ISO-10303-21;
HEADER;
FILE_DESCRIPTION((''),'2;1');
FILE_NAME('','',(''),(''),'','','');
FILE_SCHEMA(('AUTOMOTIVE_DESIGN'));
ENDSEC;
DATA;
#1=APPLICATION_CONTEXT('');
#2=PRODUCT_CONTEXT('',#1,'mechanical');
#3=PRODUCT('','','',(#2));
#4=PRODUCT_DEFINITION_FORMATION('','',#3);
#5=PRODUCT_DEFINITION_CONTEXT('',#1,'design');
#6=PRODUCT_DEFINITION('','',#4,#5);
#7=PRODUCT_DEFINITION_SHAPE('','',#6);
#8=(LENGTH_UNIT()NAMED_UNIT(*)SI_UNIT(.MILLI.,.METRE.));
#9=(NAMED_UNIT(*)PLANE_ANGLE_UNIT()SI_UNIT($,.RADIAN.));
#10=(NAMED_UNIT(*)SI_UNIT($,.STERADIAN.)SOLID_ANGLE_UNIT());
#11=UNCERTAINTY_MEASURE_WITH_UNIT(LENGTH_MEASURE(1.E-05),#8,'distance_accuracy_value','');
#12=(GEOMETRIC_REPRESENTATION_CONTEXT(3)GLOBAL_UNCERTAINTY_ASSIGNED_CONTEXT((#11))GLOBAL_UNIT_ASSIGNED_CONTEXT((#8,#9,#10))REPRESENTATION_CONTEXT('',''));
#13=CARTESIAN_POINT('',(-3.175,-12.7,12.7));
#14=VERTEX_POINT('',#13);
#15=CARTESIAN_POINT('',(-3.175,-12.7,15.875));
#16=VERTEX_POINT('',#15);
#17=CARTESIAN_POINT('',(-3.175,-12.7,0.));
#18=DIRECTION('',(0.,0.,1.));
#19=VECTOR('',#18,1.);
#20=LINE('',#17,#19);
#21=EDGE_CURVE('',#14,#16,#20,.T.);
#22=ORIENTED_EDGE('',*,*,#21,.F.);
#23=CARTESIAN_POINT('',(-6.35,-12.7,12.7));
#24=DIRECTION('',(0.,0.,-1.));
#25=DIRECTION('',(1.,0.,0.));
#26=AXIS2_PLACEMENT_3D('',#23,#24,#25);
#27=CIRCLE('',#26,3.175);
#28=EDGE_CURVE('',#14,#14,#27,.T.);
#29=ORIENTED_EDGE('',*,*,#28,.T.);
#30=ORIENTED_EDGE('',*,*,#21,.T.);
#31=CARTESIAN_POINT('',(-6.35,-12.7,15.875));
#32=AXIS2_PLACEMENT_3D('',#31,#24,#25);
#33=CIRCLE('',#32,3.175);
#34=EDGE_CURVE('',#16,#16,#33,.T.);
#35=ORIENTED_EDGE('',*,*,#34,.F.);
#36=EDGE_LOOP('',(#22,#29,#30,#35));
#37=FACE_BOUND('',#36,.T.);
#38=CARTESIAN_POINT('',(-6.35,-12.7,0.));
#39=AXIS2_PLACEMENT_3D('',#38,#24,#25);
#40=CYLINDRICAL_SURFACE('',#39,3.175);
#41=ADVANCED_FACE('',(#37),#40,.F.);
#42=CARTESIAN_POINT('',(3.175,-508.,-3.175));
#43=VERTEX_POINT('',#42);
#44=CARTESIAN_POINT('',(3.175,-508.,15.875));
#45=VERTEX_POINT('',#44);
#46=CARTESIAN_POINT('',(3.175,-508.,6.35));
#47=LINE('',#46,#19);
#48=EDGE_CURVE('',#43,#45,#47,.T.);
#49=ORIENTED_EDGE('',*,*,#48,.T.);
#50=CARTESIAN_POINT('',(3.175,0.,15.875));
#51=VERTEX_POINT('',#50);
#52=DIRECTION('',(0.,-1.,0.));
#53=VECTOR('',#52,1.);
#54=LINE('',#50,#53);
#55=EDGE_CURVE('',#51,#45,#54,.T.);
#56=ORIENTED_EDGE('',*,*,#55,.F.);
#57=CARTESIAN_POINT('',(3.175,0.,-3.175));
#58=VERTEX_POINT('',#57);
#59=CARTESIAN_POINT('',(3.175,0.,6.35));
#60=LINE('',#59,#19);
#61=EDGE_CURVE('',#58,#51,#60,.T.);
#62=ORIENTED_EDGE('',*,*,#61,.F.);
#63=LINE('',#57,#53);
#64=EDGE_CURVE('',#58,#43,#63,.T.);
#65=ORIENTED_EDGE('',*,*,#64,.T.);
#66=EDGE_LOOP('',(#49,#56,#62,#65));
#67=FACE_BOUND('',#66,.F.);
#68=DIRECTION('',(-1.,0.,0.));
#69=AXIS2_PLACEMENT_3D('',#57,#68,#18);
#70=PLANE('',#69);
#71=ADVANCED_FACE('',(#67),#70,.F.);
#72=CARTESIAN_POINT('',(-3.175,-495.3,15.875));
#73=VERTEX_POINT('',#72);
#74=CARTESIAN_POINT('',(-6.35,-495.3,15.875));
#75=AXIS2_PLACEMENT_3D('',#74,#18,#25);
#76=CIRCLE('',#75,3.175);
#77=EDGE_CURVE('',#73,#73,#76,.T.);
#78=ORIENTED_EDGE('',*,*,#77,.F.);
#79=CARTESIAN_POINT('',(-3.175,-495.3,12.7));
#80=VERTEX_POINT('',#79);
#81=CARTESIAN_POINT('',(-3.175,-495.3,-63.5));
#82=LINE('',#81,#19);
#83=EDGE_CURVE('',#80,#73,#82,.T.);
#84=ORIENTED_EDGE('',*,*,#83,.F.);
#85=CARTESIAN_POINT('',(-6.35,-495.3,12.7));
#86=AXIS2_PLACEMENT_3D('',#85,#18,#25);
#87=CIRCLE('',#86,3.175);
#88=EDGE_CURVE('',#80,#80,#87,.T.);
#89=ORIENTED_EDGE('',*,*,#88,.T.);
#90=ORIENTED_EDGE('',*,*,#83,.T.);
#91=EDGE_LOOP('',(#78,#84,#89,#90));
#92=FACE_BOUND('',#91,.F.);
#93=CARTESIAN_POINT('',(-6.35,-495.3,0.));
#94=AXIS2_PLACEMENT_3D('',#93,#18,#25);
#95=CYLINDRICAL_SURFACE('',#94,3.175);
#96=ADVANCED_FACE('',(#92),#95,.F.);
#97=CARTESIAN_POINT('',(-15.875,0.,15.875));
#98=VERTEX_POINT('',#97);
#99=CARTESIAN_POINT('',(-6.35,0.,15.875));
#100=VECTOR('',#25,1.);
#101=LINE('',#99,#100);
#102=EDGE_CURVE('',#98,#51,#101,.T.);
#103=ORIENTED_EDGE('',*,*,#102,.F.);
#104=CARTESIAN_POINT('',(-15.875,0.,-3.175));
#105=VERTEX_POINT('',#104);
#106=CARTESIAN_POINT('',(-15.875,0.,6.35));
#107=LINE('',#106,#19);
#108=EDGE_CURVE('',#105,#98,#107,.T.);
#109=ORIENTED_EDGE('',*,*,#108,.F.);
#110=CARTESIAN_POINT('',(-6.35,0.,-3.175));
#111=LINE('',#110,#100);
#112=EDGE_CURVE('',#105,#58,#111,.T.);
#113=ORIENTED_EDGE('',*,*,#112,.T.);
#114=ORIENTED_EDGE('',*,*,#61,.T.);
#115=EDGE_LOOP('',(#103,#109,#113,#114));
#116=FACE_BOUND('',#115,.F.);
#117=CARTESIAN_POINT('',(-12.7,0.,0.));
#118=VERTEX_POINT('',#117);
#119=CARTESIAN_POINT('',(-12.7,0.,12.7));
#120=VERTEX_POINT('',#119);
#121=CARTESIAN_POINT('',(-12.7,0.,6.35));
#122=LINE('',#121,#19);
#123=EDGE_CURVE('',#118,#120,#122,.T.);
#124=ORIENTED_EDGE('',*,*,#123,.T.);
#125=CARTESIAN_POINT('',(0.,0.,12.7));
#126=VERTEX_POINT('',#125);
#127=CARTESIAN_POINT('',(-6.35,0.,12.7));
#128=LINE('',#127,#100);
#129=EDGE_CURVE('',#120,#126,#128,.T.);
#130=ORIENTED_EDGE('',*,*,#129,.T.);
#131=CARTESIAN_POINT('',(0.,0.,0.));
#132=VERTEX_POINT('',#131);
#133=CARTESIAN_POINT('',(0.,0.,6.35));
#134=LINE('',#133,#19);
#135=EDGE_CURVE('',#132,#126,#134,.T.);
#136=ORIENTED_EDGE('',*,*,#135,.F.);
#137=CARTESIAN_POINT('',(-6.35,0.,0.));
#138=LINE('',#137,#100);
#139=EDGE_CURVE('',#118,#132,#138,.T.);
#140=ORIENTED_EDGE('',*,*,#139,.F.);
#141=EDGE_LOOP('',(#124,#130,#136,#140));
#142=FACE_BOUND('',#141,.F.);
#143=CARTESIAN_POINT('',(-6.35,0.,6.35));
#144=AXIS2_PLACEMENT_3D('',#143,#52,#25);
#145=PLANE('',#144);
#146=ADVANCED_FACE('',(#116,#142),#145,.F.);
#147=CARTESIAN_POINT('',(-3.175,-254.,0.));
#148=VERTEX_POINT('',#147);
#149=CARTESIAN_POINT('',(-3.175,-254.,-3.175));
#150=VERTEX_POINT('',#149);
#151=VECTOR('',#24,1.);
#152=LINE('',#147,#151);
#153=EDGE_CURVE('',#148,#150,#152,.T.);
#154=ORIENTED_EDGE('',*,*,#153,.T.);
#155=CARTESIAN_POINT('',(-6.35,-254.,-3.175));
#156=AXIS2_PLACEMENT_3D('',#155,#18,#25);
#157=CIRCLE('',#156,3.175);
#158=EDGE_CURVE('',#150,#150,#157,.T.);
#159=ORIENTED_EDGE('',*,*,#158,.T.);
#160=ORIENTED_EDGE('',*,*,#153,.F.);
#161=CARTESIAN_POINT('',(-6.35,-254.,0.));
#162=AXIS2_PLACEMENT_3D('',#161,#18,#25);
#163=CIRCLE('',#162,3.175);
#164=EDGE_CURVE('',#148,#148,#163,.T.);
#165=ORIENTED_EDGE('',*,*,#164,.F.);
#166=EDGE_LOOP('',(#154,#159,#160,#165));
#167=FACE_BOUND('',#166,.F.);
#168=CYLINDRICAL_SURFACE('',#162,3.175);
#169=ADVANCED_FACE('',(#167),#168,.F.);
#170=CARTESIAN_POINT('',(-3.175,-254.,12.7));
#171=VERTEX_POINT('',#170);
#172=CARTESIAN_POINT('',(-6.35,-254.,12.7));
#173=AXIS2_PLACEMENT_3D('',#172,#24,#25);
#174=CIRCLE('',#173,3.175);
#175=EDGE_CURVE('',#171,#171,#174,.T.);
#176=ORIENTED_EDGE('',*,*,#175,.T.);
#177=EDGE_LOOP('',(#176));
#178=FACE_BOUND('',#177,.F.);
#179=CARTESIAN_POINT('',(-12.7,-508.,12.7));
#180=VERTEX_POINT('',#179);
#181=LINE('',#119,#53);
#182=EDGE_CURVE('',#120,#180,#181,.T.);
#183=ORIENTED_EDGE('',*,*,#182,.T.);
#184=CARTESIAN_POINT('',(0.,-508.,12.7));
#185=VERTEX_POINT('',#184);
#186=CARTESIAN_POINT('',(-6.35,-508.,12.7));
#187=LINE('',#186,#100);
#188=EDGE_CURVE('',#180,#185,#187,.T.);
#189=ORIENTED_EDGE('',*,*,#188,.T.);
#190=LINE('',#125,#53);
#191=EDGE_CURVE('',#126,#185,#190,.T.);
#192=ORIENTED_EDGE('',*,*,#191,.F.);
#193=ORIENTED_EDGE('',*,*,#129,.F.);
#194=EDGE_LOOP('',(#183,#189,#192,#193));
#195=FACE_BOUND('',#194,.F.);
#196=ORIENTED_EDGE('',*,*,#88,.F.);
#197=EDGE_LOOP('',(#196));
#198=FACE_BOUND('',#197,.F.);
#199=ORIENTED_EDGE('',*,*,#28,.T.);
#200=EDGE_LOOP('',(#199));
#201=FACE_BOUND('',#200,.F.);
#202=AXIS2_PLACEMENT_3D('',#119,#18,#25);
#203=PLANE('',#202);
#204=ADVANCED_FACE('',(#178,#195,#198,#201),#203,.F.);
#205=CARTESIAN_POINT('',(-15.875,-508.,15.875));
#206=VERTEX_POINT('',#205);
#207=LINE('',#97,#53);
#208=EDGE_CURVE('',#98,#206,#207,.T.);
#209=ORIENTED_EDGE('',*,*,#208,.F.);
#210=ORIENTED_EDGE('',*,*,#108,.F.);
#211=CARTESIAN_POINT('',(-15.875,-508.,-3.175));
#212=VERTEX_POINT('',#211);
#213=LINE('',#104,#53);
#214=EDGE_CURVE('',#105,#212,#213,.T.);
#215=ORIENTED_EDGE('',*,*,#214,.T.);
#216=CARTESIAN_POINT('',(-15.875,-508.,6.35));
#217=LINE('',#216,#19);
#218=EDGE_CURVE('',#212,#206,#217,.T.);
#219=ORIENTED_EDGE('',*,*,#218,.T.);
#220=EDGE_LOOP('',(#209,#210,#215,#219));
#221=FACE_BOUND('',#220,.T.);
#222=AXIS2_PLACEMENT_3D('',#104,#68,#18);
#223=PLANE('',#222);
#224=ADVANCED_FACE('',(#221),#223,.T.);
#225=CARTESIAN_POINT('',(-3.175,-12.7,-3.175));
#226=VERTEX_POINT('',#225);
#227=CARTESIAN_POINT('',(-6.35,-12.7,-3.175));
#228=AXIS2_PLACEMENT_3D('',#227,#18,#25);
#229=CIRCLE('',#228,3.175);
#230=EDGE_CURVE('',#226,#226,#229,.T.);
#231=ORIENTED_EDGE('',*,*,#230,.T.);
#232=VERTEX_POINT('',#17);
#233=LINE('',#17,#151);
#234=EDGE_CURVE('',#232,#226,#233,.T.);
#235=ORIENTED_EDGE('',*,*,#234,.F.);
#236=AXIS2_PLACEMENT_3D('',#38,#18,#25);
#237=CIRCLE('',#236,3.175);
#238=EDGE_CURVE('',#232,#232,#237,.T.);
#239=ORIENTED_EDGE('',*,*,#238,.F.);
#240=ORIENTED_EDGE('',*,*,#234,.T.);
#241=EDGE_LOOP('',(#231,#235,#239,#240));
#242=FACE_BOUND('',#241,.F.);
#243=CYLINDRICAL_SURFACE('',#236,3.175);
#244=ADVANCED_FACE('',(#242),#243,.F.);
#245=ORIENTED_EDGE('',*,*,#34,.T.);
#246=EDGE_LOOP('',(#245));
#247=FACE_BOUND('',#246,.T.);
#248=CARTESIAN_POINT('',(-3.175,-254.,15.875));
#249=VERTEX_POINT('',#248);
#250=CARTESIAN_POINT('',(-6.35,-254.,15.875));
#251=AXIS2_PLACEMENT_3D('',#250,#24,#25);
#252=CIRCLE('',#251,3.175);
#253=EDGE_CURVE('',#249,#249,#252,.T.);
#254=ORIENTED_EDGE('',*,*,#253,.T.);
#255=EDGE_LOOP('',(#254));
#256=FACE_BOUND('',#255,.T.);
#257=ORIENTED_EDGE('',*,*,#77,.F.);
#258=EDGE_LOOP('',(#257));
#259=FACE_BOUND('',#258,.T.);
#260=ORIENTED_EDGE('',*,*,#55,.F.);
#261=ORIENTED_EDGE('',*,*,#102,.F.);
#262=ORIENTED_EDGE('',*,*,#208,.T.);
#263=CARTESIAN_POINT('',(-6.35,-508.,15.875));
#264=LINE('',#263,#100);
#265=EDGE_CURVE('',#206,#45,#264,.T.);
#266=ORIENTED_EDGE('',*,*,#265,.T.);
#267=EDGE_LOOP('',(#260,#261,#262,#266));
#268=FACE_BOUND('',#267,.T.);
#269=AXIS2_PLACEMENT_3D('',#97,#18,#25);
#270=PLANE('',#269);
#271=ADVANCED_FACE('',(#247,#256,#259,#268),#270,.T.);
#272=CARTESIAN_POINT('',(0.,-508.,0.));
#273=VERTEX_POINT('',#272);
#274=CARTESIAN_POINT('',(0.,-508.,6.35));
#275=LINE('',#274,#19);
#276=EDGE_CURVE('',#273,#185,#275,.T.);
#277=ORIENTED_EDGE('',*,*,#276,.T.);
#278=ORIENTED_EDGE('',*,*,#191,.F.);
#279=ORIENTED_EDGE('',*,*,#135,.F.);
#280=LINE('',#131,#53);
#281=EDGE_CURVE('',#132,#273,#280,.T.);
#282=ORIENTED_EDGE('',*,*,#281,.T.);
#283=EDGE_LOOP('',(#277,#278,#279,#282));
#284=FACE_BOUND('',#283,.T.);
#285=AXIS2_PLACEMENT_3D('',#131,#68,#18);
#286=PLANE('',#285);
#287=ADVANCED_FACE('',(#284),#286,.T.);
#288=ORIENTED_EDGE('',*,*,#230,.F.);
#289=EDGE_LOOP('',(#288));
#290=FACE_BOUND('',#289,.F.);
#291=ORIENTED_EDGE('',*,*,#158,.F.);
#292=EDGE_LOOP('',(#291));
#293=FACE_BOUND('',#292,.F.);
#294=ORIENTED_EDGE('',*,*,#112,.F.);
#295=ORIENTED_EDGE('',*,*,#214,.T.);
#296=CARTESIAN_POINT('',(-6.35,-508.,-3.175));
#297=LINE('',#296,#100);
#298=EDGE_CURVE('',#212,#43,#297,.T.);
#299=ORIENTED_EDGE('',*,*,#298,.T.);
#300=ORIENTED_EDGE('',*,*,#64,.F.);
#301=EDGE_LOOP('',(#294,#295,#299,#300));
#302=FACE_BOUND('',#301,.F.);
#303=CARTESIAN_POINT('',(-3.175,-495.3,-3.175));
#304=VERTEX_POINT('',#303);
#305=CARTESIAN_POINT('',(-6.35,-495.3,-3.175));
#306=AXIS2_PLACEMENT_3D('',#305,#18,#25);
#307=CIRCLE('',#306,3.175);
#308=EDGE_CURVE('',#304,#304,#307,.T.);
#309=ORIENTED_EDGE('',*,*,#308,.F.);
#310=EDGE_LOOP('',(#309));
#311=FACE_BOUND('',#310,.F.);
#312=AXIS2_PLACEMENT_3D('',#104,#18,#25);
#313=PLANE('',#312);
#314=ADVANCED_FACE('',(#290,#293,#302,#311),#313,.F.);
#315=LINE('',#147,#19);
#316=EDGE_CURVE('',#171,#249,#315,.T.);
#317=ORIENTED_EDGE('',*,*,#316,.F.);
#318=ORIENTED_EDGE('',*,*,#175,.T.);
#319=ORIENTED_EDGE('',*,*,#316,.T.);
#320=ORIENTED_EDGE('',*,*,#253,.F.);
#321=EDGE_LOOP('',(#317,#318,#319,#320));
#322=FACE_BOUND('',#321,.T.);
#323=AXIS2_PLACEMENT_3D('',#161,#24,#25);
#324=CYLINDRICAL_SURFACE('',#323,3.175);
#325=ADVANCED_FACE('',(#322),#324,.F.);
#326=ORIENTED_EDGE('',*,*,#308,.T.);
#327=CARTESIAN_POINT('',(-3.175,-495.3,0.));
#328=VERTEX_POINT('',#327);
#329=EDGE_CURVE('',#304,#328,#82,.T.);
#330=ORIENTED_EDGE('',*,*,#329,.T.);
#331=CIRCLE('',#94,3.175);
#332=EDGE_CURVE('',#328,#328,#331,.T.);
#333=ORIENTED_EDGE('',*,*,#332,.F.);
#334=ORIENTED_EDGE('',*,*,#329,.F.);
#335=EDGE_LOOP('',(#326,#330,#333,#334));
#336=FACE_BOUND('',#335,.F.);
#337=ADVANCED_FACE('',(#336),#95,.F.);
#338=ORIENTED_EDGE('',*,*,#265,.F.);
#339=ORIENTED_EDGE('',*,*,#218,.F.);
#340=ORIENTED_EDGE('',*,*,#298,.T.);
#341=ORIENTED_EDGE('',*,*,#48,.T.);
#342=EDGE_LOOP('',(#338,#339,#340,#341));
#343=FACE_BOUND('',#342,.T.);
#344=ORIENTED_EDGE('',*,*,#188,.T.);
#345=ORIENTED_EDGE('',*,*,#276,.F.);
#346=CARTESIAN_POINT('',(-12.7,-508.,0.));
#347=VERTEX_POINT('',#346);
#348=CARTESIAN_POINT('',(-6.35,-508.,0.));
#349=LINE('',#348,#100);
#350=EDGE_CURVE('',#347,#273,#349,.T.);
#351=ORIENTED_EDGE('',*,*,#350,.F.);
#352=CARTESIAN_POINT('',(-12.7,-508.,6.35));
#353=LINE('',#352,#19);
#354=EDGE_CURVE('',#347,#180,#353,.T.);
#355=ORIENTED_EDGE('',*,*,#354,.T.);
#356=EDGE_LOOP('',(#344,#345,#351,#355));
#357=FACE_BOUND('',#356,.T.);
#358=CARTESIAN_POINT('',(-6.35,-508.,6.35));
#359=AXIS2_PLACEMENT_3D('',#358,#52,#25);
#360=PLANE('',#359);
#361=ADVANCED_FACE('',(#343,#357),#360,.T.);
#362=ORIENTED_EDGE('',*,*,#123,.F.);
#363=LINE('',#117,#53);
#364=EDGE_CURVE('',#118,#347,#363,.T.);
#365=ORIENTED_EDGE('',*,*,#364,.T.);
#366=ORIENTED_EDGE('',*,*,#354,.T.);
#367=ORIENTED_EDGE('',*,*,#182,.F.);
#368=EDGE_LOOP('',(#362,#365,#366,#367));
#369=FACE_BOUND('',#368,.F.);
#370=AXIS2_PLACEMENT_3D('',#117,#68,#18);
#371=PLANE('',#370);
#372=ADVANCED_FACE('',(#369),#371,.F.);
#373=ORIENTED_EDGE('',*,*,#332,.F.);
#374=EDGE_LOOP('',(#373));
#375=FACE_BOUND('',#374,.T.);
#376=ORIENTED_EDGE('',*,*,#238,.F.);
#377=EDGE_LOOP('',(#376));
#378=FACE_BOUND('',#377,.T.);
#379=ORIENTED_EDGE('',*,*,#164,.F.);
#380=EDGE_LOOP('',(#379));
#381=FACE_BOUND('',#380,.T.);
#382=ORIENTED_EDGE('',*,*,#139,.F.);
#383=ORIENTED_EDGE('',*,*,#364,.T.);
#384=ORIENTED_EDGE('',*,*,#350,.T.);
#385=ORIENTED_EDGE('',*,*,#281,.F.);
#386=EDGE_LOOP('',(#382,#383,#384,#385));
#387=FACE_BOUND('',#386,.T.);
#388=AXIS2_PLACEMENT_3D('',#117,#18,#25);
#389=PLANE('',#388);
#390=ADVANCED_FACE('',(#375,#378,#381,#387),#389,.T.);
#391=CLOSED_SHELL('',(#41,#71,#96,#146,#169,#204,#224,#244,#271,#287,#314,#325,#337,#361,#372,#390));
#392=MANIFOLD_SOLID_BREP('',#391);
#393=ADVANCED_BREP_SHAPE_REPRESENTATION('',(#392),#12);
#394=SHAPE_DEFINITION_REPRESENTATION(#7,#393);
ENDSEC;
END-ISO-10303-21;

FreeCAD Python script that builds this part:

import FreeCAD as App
import Part
import Sketcher
from FreeCAD import Vector
Q = App.Units.Quantity


def add_polygon(sketch, points):
    """Adds a closed chain of lines whose ends are joined by coincident constraints."""
    first, n = sketch.GeometryCount, len(points)
    for a, b in zip(points, points[1:] + points[:1]):
        sketch.addGeometry(Part.LineSegment(App.Vector(*a, 0), App.Vector(*b, 0)), False)
    for i in range(n):
        sketch.addConstraint(Sketcher.Constraint("Coincident", first + i, 2, first + (i + 1) % n, 1))

doc = App.newDocument("Part")
params = doc.addObject("Spreadsheet::Sheet", "Params")
for row, (alias, value) in enumerate([
    ("sketch1_width", "0.5 in"),
    ("sketch1_width2", "0.75 in"),
    ("pad1_length", "20 in"),
    ("sketch2_diameter", "0.25 in"),
    ("pocket1_length", "5 in"),
], start=1):
    params.set(f"A{row}", alias)
    params.set(f"B{row}", "=" + value)
    params.setAlias(f"B{row}", alias)

body = doc.addObject("PartDesign::Body", "Body")

# Sketch on XZ plane
sketch1 = body.newObject("Sketcher::SketchObject", "Sketch")
sketch1.AttachmentSupport = (doc.getObject("XZ_Plane"), [""])
sketch1.MapMode = "FlatFace"
add_polygon(sketch1, [(-16, 16), (-16, -3), (3, -3), (3, 16)])  # lines 0-3
add_polygon(sketch1, [(0, 0), (-13, 0), (-13, 13), (0, 13)])  # lines 4-7
sketch1.addConstraint(Sketcher.Constraint("Vertical", 0))
sketch1.addConstraint(Sketcher.Constraint("Horizontal", 1))
sketch1.addConstraint(Sketcher.Constraint("Vertical", 2))
sketch1.addConstraint(Sketcher.Constraint("Horizontal", 3))
sketch1.addConstraint(Sketcher.Constraint("Horizontal", 4))
sketch1.addConstraint(Sketcher.Constraint("Vertical", 5))
sketch1.addConstraint(Sketcher.Constraint("Horizontal", 6))
sketch1.addConstraint(Sketcher.Constraint("Vertical", 7))
sketch1.addConstraint(Sketcher.Constraint("Coincident", 7, 2, -1, 1))
sketch1.addConstraint(Sketcher.Constraint("Equal", 3, 0))
sketch1.addConstraint(Sketcher.Constraint("Equal", 6, 5))
sketch1.addConstraint(Sketcher.Constraint("DistanceX", 4, 2, 4, 1, Q("0.5 in")))
sketch1.addConstraint(Sketcher.Constraint("DistanceX", 1, 1, 1, 2, Q("0.75 in")))
sketch1.addConstraint(Sketcher.Constraint("DistanceX", 0, 2, -1, 1, Q("0.625 in")))
sketch1.addConstraint(Sketcher.Constraint("DistanceY", 0, 2, -1, 1, Q("0.125 in")))
sketch1.setExpression("Constraints[19]", "Params.sketch1_width")
sketch1.setExpression("Constraints[20]", "Params.sketch1_width2")
pad1 = body.newObject("PartDesign::Pad", "Pad")
pad1.Profile = sketch1
pad1.setExpression("Length", "Params.pad1_length")

# Sketch on XY plane
sketch2 = body.newObject("Sketcher::SketchObject", "Sketch001")
sketch2.AttachmentSupport = (doc.getObject("XY_Plane"), [""])
sketch2.MapMode = "FlatFace"
sketch2.addGeometry(Part.Circle(Vector(-6.3, -12.7, 0), Vector(0, 0, 1), 3.2), False)
sketch2.addGeometry(Part.Circle(Vector(-6.3, -254, 0), Vector(0, 0, 1), 3.2), False)
sketch2.addGeometry(Part.Circle(Vector(-6.3, -495.3, 0), Vector(0, 0, 1), 3.2), False)
sketch2.addConstraint(Sketcher.Constraint("Equal", 0, 1))
sketch2.addConstraint(Sketcher.Constraint("Equal", 1, 2))
sketch2.addConstraint(Sketcher.Constraint("Vertical", 0, 3, 1, 3))
sketch2.addConstraint(Sketcher.Constraint("Vertical", 1, 3, 2, 3))
sketch2.addConstraint(Sketcher.Constraint("Diameter", 0, Q("0.25 in")))
sketch2.addConstraint(Sketcher.Constraint("DistanceY", 1, 3, -1, 1, Q("10 in")))
sketch2.addConstraint(Sketcher.Constraint("DistanceY", 2, 3, 0, 3, Q("19 in")))
sketch2.addConstraint(Sketcher.Constraint("DistanceY", 0, 3, -1, 1, Q("0.5 in")))
sketch2.addConstraint(Sketcher.Constraint("DistanceX", 0, 3, -1, 1, Q("0.25 in")))
sketch2.setExpression("Constraints[4]", "Params.sketch2_diameter")
pocket1 = body.newObject("PartDesign::Pocket", "Pocket")
pocket1.Profile = sketch2
pocket1.setExpression("Length", "Params.pocket1_length")
pocket1.Midplane = True

doc.recompute()
